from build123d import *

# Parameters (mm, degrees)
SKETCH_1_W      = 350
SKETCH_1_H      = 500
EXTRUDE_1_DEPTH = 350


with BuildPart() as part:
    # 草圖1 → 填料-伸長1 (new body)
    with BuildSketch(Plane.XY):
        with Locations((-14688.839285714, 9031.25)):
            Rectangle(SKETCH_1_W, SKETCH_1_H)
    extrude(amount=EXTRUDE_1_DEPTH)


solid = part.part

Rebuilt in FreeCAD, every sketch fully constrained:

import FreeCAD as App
import Part
import Sketcher


def add_polygon(sketch, points):
    """Adds a closed chain of lines whose ends are joined by coincident constraints."""
    first, n = sketch.GeometryCount, len(points)
    for a, b in zip(points, points[1:] + points[:1]):
        sketch.addGeometry(Part.LineSegment(App.Vector(*a, 0), App.Vector(*b, 0)), False)
    for i in range(n):
        sketch.addConstraint(Sketcher.Constraint("Coincident", first + i, 2, first + (i + 1) % n, 1))

doc = App.newDocument("Part")
params = doc.addObject("Spreadsheet::Sheet", "Params")
for row, (alias, value) in enumerate([
    ("sketch1_width", "350 mm"),
    ("sketch1_height", "500 mm"),
    ("pad1_length", "350 mm"),
], start=1):
    params.set(f"A{row}", alias)
    params.set(f"B{row}", "=" + value)
    params.setAlias(f"B{row}", alias)

body = doc.addObject("PartDesign::Body", "Body")

# Sketch on XY plane
sketch1 = body.newObject("Sketcher::SketchObject", "Sketch")
sketch1.AttachmentSupport = (doc.getObject("XY_Plane"), [""])
sketch1.MapMode = "FlatFace"
add_polygon(sketch1, [(-14863.839286, 9281.25), (-14863.839286, 8781.25), (-14513.839286, 8781.25), (-14513.839286, 9281.25)])  # lines 0-3
sketch1.addConstraint(Sketcher.Constraint("Vertical", 0))
sketch1.addConstraint(Sketcher.Constraint("Horizontal", 1))
sketch1.addConstraint(Sketcher.Constraint("Vertical", 2))
sketch1.addConstraint(Sketcher.Constraint("Horizontal", 3))
sketch1.addConstraint(Sketcher.Constraint("DistanceX", 1, 1, 1, 2, 350.0))
sketch1.addConstraint(Sketcher.Constraint("DistanceY", 0, 2, 0, 1, 500.0))
sketch1.addConstraint(Sketcher.Constraint("DistanceY", -1, 1, 0, 2, 8781.25))
sketch1.addConstraint(Sketcher.Constraint("DistanceX", 0, 2, -1, 1, 14863.839286))
sketch1.setExpression("Constraints[8]", "Params.sketch1_width")
sketch1.setExpression("Constraints[9]", "Params.sketch1_height")
pad1 = body.newObject("PartDesign::Pad", "Pad")
pad1.Profile = sketch1
pad1.setExpression("Length", "Params.pad1_length")

doc.recompute()
